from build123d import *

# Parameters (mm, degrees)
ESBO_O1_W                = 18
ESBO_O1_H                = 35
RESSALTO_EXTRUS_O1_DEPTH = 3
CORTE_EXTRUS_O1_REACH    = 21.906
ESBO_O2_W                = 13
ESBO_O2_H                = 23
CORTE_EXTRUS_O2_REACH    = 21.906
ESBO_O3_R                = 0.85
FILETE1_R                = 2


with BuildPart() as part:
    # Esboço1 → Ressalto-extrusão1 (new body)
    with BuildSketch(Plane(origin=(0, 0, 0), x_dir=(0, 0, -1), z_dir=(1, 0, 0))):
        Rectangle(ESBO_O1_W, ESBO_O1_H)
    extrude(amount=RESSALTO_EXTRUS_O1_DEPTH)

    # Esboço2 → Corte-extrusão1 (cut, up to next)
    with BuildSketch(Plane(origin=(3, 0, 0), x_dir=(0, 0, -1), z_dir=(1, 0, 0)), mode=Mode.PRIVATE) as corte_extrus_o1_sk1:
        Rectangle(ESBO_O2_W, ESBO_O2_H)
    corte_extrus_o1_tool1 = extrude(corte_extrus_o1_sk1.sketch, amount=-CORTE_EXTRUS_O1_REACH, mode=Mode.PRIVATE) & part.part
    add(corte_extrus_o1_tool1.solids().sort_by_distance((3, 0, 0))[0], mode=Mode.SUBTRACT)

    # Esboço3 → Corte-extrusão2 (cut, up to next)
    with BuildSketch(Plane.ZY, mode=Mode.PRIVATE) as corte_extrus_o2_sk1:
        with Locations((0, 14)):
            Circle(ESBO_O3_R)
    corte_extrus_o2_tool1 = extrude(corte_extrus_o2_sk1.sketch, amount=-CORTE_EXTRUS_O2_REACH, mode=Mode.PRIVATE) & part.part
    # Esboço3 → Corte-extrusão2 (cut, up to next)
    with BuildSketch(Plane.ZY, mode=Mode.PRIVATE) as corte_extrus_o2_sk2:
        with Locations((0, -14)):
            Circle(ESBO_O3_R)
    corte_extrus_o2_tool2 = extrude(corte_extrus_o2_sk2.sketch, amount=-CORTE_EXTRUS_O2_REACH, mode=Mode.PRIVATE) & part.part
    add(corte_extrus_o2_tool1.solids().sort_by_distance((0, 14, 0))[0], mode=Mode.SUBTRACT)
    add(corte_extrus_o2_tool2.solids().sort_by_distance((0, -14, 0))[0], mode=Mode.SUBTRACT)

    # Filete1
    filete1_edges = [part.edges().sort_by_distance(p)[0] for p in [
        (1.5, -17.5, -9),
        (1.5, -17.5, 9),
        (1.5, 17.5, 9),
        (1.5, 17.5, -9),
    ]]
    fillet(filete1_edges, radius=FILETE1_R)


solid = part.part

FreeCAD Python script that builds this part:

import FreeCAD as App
import Part
import Sketcher

V = App.Vector
Q = App.Units.Quantity


def edges_at(feature, points):
    """Names of the edges that pass closest to the given points."""
    edges = feature.Shape.Edges
    near = lambda p: min(range(len(edges)), key=lambda i: edges[i].distToShape(Part.Vertex(*p))[0])
    return sorted({f"Edge{near(p) + 1}" for p in points})


def add_polygon(sketch, points):
    """Adds a closed chain of lines whose ends are joined by coincident constraints."""
    first, n = sketch.GeometryCount, len(points)
    for a, b in zip(points, points[1:] + points[:1]):
        sketch.addGeometry(Part.LineSegment(App.Vector(*a, 0), App.Vector(*b, 0)), False)
    for i in range(n):
        sketch.addConstraint(Sketcher.Constraint("Coincident", first + i, 2, first + (i + 1) % n, 1))

doc = App.newDocument("Part")
body = doc.addObject("PartDesign::Body", "Body")

sketch1 = body.newObject("Sketcher::SketchObject", "Sketch")
sketch1.AttachmentSupport = (doc.getObject("YZ_Plane"), [""])
sketch1.MapMode = "FlatFace"
add_polygon(sketch1, [(18, 9), (-18, 9), (-18, -9), (18, -9)])
sketch1.addConstraint([
    Sketcher.Constraint("Horizontal", 0),
    Sketcher.Constraint("Vertical", 1),
    Sketcher.Constraint("Horizontal", 2),
    Sketcher.Constraint("Vertical", 3),
    Sketcher.Constraint("Symmetric", 0, 2, 2, 2, -1, 1),
    Sketcher.Constraint("DistanceX", 0, 2, 0, 1, Q("35 mm")),
    Sketcher.Constraint("DistanceY", 1, 2, 1, 1, Q("18 mm")),
])
pad1 = body.newObject("PartDesign::Pad", "Pad")
pad1.Profile = sketch1
pad1.Length = 3

sketch2 = body.newObject("Sketcher::SketchObject", "Sketch001")
sketch2.AttachmentSupport = (doc.getObject("YZ_Plane"), [""])
sketch2.MapMode = "FlatFace"
sketch2.AttachmentOffset = App.Placement(V(0, 0, 3), App.Rotation())
add_polygon(sketch2, [(12, 6), (-12, 6), (-12, -6), (12, -6)])
sketch2.addConstraint([
    Sketcher.Constraint("Horizontal", 0),
    Sketcher.Constraint("Vertical", 1),
    Sketcher.Constraint("Horizontal", 2),
    Sketcher.Constraint("Vertical", 3),
    Sketcher.Constraint("Symmetric", 0, 2, 2, 2, -1, 1),
    Sketcher.Constraint("DistanceX", 0, 2, 0, 1, Q("23 mm")),
    Sketcher.Constraint("DistanceY", 1, 2, 1, 1, Q("13 mm")),
])
pocket1 = body.newObject("PartDesign::Pocket", "Pocket")
pocket1.Profile = sketch2
pocket1.Type = "UpToFirst"

sketch3 = body.newObject("Sketcher::SketchObject", "Sketch002")
sketch3.AttachmentSupport = (doc.getObject("YZ_Plane"), [""])
sketch3.MapMode = "FlatFace"
sketch3.addGeometry(Part.Circle(V(14, 0, 0), V(0, 0, 1), 0.8), False)
sketch3.addConstraint([
    Sketcher.Constraint("PointOnObject", 0, 3, -1),
    Sketcher.Constraint("Diameter", 0, Q("1.7 mm")),
    Sketcher.Constraint("DistanceX", -1, 1, 0, 3, Q("14 mm")),
])
pocket2 = body.newObject("PartDesign::Pocket", "Pocket001")
pocket2.Profile = sketch3
pocket2.Type = "UpToFirst"
pocket2.Reversed = True

sketch4 = body.newObject("Sketcher::SketchObject", "Sketch003")
sketch4.AttachmentSupport = (doc.getObject("YZ_Plane"), [""])
sketch4.MapMode = "FlatFace"
sketch4.addGeometry(Part.Circle(V(-14, 0, 0), V(0, 0, 1), 0.8), False)
sketch4.addConstraint([
    Sketcher.Constraint("PointOnObject", 0, 3, -1),
    Sketcher.Constraint("Diameter", 0, Q("1.7 mm")),
    Sketcher.Constraint("DistanceX", 0, 3, -1, 1, Q("14 mm")),
])
pocket3 = body.newObject("PartDesign::Pocket", "Pocket002")
pocket3.Profile = sketch4
pocket3.Type = "UpToFirst"
pocket3.Reversed = True
doc.recompute()

fillet = body.newObject("PartDesign::Fillet", "Fillet")
fillet.Base = (pocket3, edges_at(pocket3, [
    (1.5, -17.5, -9),
    (1.5, -17.5, 9),
    (1.5, 17.5, 9),
    (1.5, 17.5, -9),
]))
fillet.Radius = 2

doc.recompute()
